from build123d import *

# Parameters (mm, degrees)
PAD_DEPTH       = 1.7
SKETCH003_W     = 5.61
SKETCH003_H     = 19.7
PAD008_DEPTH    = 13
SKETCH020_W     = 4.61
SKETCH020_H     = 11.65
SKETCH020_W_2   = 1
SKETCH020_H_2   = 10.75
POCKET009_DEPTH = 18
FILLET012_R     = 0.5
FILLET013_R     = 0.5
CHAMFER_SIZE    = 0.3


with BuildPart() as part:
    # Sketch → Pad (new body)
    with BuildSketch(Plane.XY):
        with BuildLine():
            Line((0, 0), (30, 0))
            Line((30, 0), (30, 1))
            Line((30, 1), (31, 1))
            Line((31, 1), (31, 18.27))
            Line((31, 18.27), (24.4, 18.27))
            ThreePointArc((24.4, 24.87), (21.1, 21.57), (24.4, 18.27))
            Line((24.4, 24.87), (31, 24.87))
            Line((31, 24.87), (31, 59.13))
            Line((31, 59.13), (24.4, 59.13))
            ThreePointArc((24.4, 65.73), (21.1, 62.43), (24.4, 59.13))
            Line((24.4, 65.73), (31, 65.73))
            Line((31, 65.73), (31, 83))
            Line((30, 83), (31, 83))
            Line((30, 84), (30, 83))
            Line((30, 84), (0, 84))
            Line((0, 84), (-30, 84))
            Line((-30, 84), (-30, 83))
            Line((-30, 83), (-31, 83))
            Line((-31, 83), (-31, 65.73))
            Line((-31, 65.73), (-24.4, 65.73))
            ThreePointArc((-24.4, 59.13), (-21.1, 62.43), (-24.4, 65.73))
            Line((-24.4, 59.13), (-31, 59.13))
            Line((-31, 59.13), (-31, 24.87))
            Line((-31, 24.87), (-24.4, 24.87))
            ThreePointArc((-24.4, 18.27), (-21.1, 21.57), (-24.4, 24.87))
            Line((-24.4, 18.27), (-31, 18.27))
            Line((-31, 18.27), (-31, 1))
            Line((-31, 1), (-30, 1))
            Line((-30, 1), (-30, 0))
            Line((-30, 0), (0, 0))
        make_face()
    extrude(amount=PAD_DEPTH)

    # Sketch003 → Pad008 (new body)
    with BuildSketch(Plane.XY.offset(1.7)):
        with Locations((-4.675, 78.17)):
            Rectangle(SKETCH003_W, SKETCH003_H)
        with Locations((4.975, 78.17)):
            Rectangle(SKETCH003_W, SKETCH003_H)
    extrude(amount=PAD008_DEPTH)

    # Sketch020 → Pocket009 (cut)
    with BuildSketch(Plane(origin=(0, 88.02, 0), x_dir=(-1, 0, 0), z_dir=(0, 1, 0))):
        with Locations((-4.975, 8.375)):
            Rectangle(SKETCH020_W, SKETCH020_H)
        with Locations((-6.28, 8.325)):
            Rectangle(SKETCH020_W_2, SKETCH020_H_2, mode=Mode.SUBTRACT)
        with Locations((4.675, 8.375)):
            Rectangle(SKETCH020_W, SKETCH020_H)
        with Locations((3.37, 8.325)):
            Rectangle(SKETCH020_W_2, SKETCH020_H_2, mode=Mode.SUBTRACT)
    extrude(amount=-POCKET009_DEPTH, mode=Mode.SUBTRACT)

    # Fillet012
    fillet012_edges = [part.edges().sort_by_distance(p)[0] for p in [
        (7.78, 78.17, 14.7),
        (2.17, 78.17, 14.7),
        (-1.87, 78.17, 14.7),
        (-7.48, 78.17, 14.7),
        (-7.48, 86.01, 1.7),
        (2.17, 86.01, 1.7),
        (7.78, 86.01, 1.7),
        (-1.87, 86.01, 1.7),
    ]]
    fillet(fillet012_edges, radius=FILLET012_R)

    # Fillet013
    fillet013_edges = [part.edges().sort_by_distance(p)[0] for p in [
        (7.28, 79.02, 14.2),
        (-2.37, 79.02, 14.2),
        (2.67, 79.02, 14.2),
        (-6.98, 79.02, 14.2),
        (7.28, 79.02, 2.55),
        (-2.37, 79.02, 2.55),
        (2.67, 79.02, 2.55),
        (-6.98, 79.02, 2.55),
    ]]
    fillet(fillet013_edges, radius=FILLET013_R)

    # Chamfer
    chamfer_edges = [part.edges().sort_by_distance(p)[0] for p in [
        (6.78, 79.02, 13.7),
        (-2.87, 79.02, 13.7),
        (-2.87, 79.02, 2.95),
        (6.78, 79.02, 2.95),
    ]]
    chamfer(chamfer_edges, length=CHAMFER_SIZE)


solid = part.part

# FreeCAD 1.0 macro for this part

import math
import FreeCAD as App
import Part
import Sketcher
Q = App.Units.Quantity


def edges_at(feature, points):
    """Names of the edges that pass closest to the given points."""
    edges = feature.Shape.Edges
    near = lambda p: min(range(len(edges)), key=lambda i: edges[i].distToShape(Part.Vertex(*p))[0])
    return sorted({f"Edge{near(p) + 1}" for p in points})

doc = App.newDocument("Part")
params = doc.addObject("Spreadsheet::Sheet", "Params")
for row, (alias, value) in enumerate([
    ("sketch1_radius", "3.3 mm"),
    ("sketch1_width", "1 mm"),
    ("sketch1_width2", "60 mm"),
    ("sketch1_width3", "6.6 mm"),
    ("sketch1_height", "17.27 mm"),
    ("pad1_length", "1.7 mm"),
    ("sketch2_height", "19.7 mm"),
    ("sketch2_width", "5.61 mm"),
    ("pad2_length", "13 mm"),
    ("sketch3_width", "1 mm"),
    ("sketch3_width2", "4.61 mm"),
    ("sketch3_height", "11.65 mm"),
    ("sketch3_height2", "10.75 mm"),
    ("pocket1_length", "18 mm"),
    ("fillet_radius", "0.5 mm"),
    ("fillet2_radius", "0.5 mm"),
    ("chamfer_size", "0.3 mm"),
], start=1):
    params.set(f"A{row}", alias)
    params.set(f"B{row}", "=" + value)
    params.setAlias(f"B{row}", alias)

body = doc.addObject("PartDesign::Body", "Body")

sketch1 = doc.addObject("Sketcher::SketchObject", "Sketch")
body.addObject(sketch1)
sketch1.AttachmentSupport = (doc.XY_Plane, [""])
sketch1.MapMode = "FlatFace"
sketch1.addGeometry([
    Part.LineSegment(App.Vector(30, 0, 0), App.Vector(30, 1, 0)),
    Part.LineSegment(App.Vector(30, 1, 0), App.Vector(31, 1, 0)),
    Part.LineSegment(App.Vector(31, 1, 0), App.Vector(31, 18.3, 0)),
    Part.LineSegment(App.Vector(31, 18.3, 0), App.Vector(24.4, 18.3, 0)),
    Part.ArcOfCircle(Part.Circle(App.Vector(24.4, 21.6, 0), App.Vector(0, 0, 1), 3.3), math.radians(90), math.radians(270)),
    Part.LineSegment(App.Vector(24.4, 24.9, 0), App.Vector(31, 24.9, 0)),
    Part.LineSegment(App.Vector(31, 24.9, 0), App.Vector(31, 59.1, 0)),
    Part.LineSegment(App.Vector(31, 59.1, 0), App.Vector(24.4, 59.1, 0)),
    Part.ArcOfCircle(Part.Circle(App.Vector(24.4, 62.4, 0), App.Vector(0, 0, 1), 3.3), math.radians(90), math.radians(270)),
    Part.LineSegment(App.Vector(24.4, 65.7, 0), App.Vector(31, 65.7, 0)),
    Part.LineSegment(App.Vector(31, 65.7, 0), App.Vector(31, 83, 0)),
    Part.LineSegment(App.Vector(31, 83, 0), App.Vector(30, 83, 0)),
    Part.LineSegment(App.Vector(30, 83, 0), App.Vector(30, 84, 0)),
    Part.LineSegment(App.Vector(30, 84, 0), App.Vector(-30, 84, 0)),
    Part.LineSegment(App.Vector(-30, 84, 0), App.Vector(-30, 83, 0)),
    Part.LineSegment(App.Vector(-30, 83, 0), App.Vector(-31, 83, 0)),
    Part.LineSegment(App.Vector(-31, 83, 0), App.Vector(-31, 65.7, 0)),
    Part.LineSegment(App.Vector(-31, 65.7, 0), App.Vector(-24.4, 65.7, 0)),
    Part.ArcOfCircle(Part.Circle(App.Vector(-24.4, 62.4, 0), App.Vector(0, 0, 1), 3.3), math.radians(-90), math.radians(90)),
    Part.LineSegment(App.Vector(-24.4, 59.1, 0), App.Vector(-31, 59.1, 0)),
    Part.LineSegment(App.Vector(-31, 59.1, 0), App.Vector(-31, 24.9, 0)),
    Part.LineSegment(App.Vector(-31, 24.9, 0), App.Vector(-24.4, 24.9, 0)),
    Part.ArcOfCircle(Part.Circle(App.Vector(-24.4, 21.6, 0), App.Vector(0, 0, 1), 3.3), math.radians(-90), math.radians(90)),
    Part.LineSegment(App.Vector(-24.4, 18.3, 0), App.Vector(-31, 18.3, 0)),
    Part.LineSegment(App.Vector(-31, 18.3, 0), App.Vector(-31, 1, 0)),
    Part.LineSegment(App.Vector(-31, 1, 0), App.Vector(-30, 1, 0)),
    Part.LineSegment(App.Vector(-30, 1, 0), App.Vector(-30, 0, 0)),
    Part.LineSegment(App.Vector(-30, 0, 0), App.Vector(30, 0, 0)),
], False)
sketch1.addConstraint([
    Sketcher.Constraint("Coincident", 0, 2, 1, 1),
    Sketcher.Constraint("Coincident", 1, 2, 2, 1),
    Sketcher.Constraint("Coincident", 2, 2, 3, 1),
    Sketcher.Constraint("Tangent", 3, 2, 4, 2),
    Sketcher.Constraint("Tangent", 4, 1, 5, 1),
    Sketcher.Constraint("Coincident", 5, 2, 6, 1),
    Sketcher.Constraint("Coincident", 6, 2, 7, 1),
    Sketcher.Constraint("Tangent", 7, 2, 8, 2),
    Sketcher.Constraint("Tangent", 8, 1, 9, 1),
    Sketcher.Constraint("Coincident", 9, 2, 10, 1),
    Sketcher.Constraint("Coincident", 10, 2, 11, 1),
    Sketcher.Constraint("Coincident", 11, 2, 12, 1),
    Sketcher.Constraint("Coincident", 12, 2, 13, 1),
    Sketcher.Constraint("Coincident", 13, 2, 14, 1),
    Sketcher.Constraint("Coincident", 14, 2, 15, 1),
    Sketcher.Constraint("Coincident", 15, 2, 16, 1),
    Sketcher.Constraint("Coincident", 16, 2, 17, 1),
    Sketcher.Constraint("Tangent", 17, 2, 18, 2),
    Sketcher.Constraint("Tangent", 18, 1, 19, 1),
    Sketcher.Constraint("Coincident", 19, 2, 20, 1),
    Sketcher.Constraint("Coincident", 20, 2, 21, 1),
    Sketcher.Constraint("Tangent", 21, 2, 22, 2),
    Sketcher.Constraint("Tangent", 22, 1, 23, 1),
    Sketcher.Constraint("Coincident", 23, 2, 24, 1),
    Sketcher.Constraint("Coincident", 24, 2, 25, 1),
    Sketcher.Constraint("Coincident", 25, 2, 26, 1),
    Sketcher.Constraint("Coincident", 26, 2, 27, 1),
    Sketcher.Constraint("Coincident", 27, 2, 0, 1),
    Sketcher.Constraint("Vertical", 0),
    Sketcher.Constraint("Horizontal", 1),
    Sketcher.Constraint("Vertical", 2),
    Sketcher.Constraint("Horizontal", 3),
    Sketcher.Constraint("Horizontal", 5),
    Sketcher.Constraint("Vertical", 6),
    Sketcher.Constraint("Horizontal", 7),
    Sketcher.Constraint("Horizontal", 9),
    Sketcher.Constraint("Vertical", 10),
    Sketcher.Constraint("Horizontal", 11),
    Sketcher.Constraint("Vertical", 12),
    Sketcher.Constraint("Horizontal", 13),
    Sketcher.Constraint("Vertical", 14),
    Sketcher.Constraint("Horizontal", 15),
    Sketcher.Constraint("Vertical", 16),
    Sketcher.Constraint("Horizontal", 17),
    Sketcher.Constraint("Horizontal", 19),
    Sketcher.Constraint("Vertical", 20),
    Sketcher.Constraint("Horizontal", 21),
    Sketcher.Constraint("Horizontal", 23),
    Sketcher.Constraint("Vertical", 24),
    Sketcher.Constraint("Horizontal", 25),
    Sketcher.Constraint("Vertical", 26),
    Sketcher.Constraint("Horizontal", 27),
    Sketcher.Constraint("Equal", 4, 8),
    Sketcher.Constraint("Equal", 8, 18),
    Sketcher.Constraint("Equal", 18, 22),
    Sketcher.Constraint("Symmetric", 26, 2, 27, 2, -1, 1),
    Sketcher.Constraint("Symmetric", 8, 3, 18, 3, -2),
    Sketcher.Constraint("Symmetric", 4, 3, 22, 3, -2),
    Sketcher.Constraint("Symmetric", 11, 2, 14, 2, -2),
    Sketcher.Constraint("Symmetric", 1, 2, 24, 2, -2),
    Sketcher.Constraint("Vertical", 4, 3, 8, 3),
    Sketcher.Constraint("Vertical", 2, 2, 5, 2),
    Sketcher.Constraint("Vertical", 6, 2, 9, 2),
    Sketcher.Constraint("Vertical", 0, 2, 11, 2),
    Sketcher.Constraint("Vertical", 16, 2, 19, 2),
    Sketcher.Constraint("Vertical", 20, 2, 23, 2),
    Sketcher.Constraint("Equal", 25, 0),
    Sketcher.Constraint("Equal", 2, 10),
    Sketcher.Constraint("Equal", 0, 12),
    Sketcher.Constraint("Radius", 4, Q("3.3 mm")),
    Sketcher.Constraint("DistanceX", 1, 1, 1, 2, Q("1 mm")),
    Sketcher.Constraint("DistanceX", 13, 2, 13, 1, Q("60 mm")),
    Sketcher.Constraint("DistanceX", 3, 2, 3, 1, Q("6.6 mm")),
    Sketcher.Constraint("DistanceY", -1, 1, 10, 2, Q("83 mm")),
    Sketcher.Constraint("DistanceY", 2, 1, 2, 2, Q("17.27 mm")),
])
sketch1.setExpression("Constraints[69]", "Params.sketch1_radius")
sketch1.setExpression("Constraints[70]", "Params.sketch1_width")
sketch1.setExpression("Constraints[71]", "Params.sketch1_width2")
sketch1.setExpression("Constraints[72]", "Params.sketch1_width3")
sketch1.setExpression("Constraints[74]", "Params.sketch1_height")
pad1 = doc.addObject("PartDesign::Pad", "Pad")
body.addObject(pad1)
pad1.Profile = sketch1
pad1.setExpression("Length", "Params.pad1_length")

sketch2 = doc.addObject("Sketcher::SketchObject", "Sketch001")
body.addObject(sketch2)
sketch2.AttachmentSupport = (doc.XY_Plane, [""])
sketch2.MapMode = "FlatFace"
sketch2.AttachmentOffset = App.Placement(App.Vector(0, 0, 1.7), App.Rotation())
sketch2.addGeometry([
    Part.LineSegment(App.Vector(-7, 88, 0), App.Vector(-7, 68, 0)),
    Part.LineSegment(App.Vector(-7, 68, 0), App.Vector(-2, 68, 0)),
    Part.LineSegment(App.Vector(-2, 68, 0), App.Vector(-2, 88, 0)),
    Part.LineSegment(App.Vector(-2, 88, 0), App.Vector(-7, 88, 0)),
    Part.LineSegment(App.Vector(2, 88, 0), App.Vector(2, 68, 0)),
    Part.LineSegment(App.Vector(2, 68, 0), App.Vector(8, 68, 0)),
    Part.LineSegment(App.Vector(8, 68, 0), App.Vector(8, 88, 0)),
    Part.LineSegment(App.Vector(8, 88, 0), App.Vector(2, 88, 0)),
], False)
sketch2.addConstraint([
    Sketcher.Constraint("Coincident", 0, 2, 1, 1),
    Sketcher.Constraint("Coincident", 1, 2, 2, 1),
    Sketcher.Constraint("Coincident", 2, 2, 3, 1),
    Sketcher.Constraint("Coincident", 3, 2, 0, 1),
    Sketcher.Constraint("Coincident", 4, 2, 5, 1),
    Sketcher.Constraint("Coincident", 5, 2, 6, 1),
    Sketcher.Constraint("Coincident", 6, 2, 7, 1),
    Sketcher.Constraint("Coincident", 7, 2, 4, 1),
    Sketcher.Constraint("Vertical", 0),
    Sketcher.Constraint("Horizontal", 1),
    Sketcher.Constraint("Vertical", 2),
    Sketcher.Constraint("Horizontal", 3),
    Sketcher.Constraint("Vertical", 4),
    Sketcher.Constraint("Horizontal", 5),
    Sketcher.Constraint("Vertical", 6),
    Sketcher.Constraint("Horizontal", 7),
    Sketcher.Constraint("Horizontal", 1, 2, 4, 2),
    Sketcher.Constraint("Horizontal", 3, 2, 6, 2),
    Sketcher.Constraint("Equal", 3, 5),
    Sketcher.Constraint("DistanceY", 0, 2, 0, 1, Q("19.7 mm")),
    Sketcher.Constraint("DistanceX", 1, 1, 1, 2, Q("5.61 mm")),
    Sketcher.Constraint("DistanceX", 0, 2, -1, 1, Q("7.48 mm")),
    Sketcher.Constraint("DistanceY", -1, 1, 0, 2, Q("68.32 mm")),
    Sketcher.Constraint("DistanceX", -1, 1, 4, 2, Q("2.17 mm")),
])
sketch2.setExpression("Constraints[19]", "Params.sketch2_height")
sketch2.setExpression("Constraints[20]", "Params.sketch2_width")
pad2 = doc.addObject("PartDesign::Pad", "Pad001")
body.addObject(pad2)
pad2.Profile = sketch2
pad2.setExpression("Length", "Params.pad2_length")

sketch3 = doc.addObject("Sketcher::SketchObject", "Sketch002")
body.addObject(sketch3)
sketch3.AttachmentSupport = (doc.XZ_Plane, [""])
sketch3.MapMode = "FlatFace"
sketch3.AttachmentOffset = App.Placement(App.Vector(0, 0, -88.02), App.Rotation())
sketch3.addGeometry([
    Part.LineSegment(App.Vector(7.3, 14.2, 0), App.Vector(7.3, 2.5, 0)),
    Part.LineSegment(App.Vector(7.3, 2.5, 0), App.Vector(2.7, 2.5, 0)),
    Part.LineSegment(App.Vector(2.7, 2.5, 0), App.Vector(2.7, 14.2, 0)),
    Part.LineSegment(App.Vector(2.7, 14.2, 0), App.Vector(7.3, 14.2, 0)),
    Part.LineSegment(App.Vector(5.8, 3, 0), App.Vector(6.8, 3, 0)),
    Part.LineSegment(App.Vector(6.8, 3, 0), App.Vector(6.8, 13.7, 0)),
    Part.LineSegment(App.Vector(6.8, 13.7, 0), App.Vector(5.8, 13.7, 0)),
    Part.LineSegment(App.Vector(5.8, 13.7, 0), App.Vector(5.8, 3, 0)),
    Part.LineSegment(App.Vector(-2.4, 14.2, 0), App.Vector(-2.4, 2.5, 0)),
    Part.LineSegment(App.Vector(-2.4, 2.5, 0), App.Vector(-7, 2.5, 0)),
    Part.LineSegment(App.Vector(-7, 2.5, 0), App.Vector(-7, 14.2, 0)),
    Part.LineSegment(App.Vector(-7, 14.2, 0), App.Vector(-2.4, 14.2, 0)),
    Part.LineSegment(App.Vector(-3.9, 3, 0), App.Vector(-2.9, 3, 0)),
    Part.LineSegment(App.Vector(-2.9, 3, 0), App.Vector(-2.9, 13.7, 0)),
    Part.LineSegment(App.Vector(-2.9, 13.7, 0), App.Vector(-3.9, 13.7, 0)),
    Part.LineSegment(App.Vector(-3.9, 13.7, 0), App.Vector(-3.9, 3, 0)),
], False)
sketch3.addConstraint([
    Sketcher.Constraint("Coincident", 0, 2, 1, 1),
    Sketcher.Constraint("Coincident", 1, 2, 2, 1),
    Sketcher.Constraint("Coincident", 2, 2, 3, 1),
    Sketcher.Constraint("Coincident", 3, 2, 0, 1),
    Sketcher.Constraint("Coincident", 4, 2, 5, 1),
    Sketcher.Constraint("Coincident", 5, 2, 6, 1),
    Sketcher.Constraint("Coincident", 6, 2, 7, 1),
    Sketcher.Constraint("Coincident", 7, 2, 4, 1),
    Sketcher.Constraint("Coincident", 8, 2, 9, 1),
    Sketcher.Constraint("Coincident", 9, 2, 10, 1),
    Sketcher.Constraint("Coincident", 10, 2, 11, 1),
    Sketcher.Constraint("Coincident", 11, 2, 8, 1),
    Sketcher.Constraint("Coincident", 12, 2, 13, 1),
    Sketcher.Constraint("Coincident", 13, 2, 14, 1),
    Sketcher.Constraint("Coincident", 14, 2, 15, 1),
    Sketcher.Constraint("Coincident", 15, 2, 12, 1),
    Sketcher.Constraint("Vertical", 0),
    Sketcher.Constraint("Horizontal", 1),
    Sketcher.Constraint("Vertical", 2),
    Sketcher.Constraint("Horizontal", 3),
    Sketcher.Constraint("Horizontal", 4),
    Sketcher.Constraint("Vertical", 5),
    Sketcher.Constraint("Horizontal", 6),
    Sketcher.Constraint("Vertical", 7),
    Sketcher.Constraint("Vertical", 8),
    Sketcher.Constraint("Horizontal", 9),
    Sketcher.Constraint("Vertical", 10),
    Sketcher.Constraint("Horizontal", 11),
    Sketcher.Constraint("Horizontal", 12),
    Sketcher.Constraint("Vertical", 13),
    Sketcher.Constraint("Horizontal", 14),
    Sketcher.Constraint("Vertical", 15),
    Sketcher.Constraint("Horizontal", 1, 2, 8, 2),
    Sketcher.Constraint("Horizontal", 3, 2, 10, 2),
    Sketcher.Constraint("Horizontal", 7, 2, 12, 2),
    Sketcher.Constraint("Horizontal", 6, 2, 13, 2),
    Sketcher.Constraint("Equal", 3, 9),
    Sketcher.Constraint("Equal", 6, 12),
    Sketcher.Constraint("DistanceX", 4, 1, 4, 2, Q("1 mm")),
    Sketcher.Constraint("DistanceX", 1, 2, 1, 1, Q("4.61 mm")),
    Sketcher.Constraint("DistanceY", 0, 2, 0, 1, Q("11.65 mm")),
    Sketcher.Constraint("DistanceY", 5, 1, 5, 2, Q("10.75 mm")),
    Sketcher.Constraint("DistanceY", -1, 1, 2, 2, Q("14.2 mm")),
    Sketcher.Constraint("DistanceY", -1, 1, 5, 2, Q("13.7 mm")),
    Sketcher.Constraint("DistanceX", 4, 2, 0, 2, Q("0.5 mm")),
    Sketcher.Constraint("DistanceX", 12, 2, 8, 2, Q("0.5 mm")),
    Sketcher.Constraint("DistanceX", -1, 1, 0, 2, Q("7.28 mm")),
    Sketcher.Constraint("DistanceX", 8, 2, -1, 1, Q("2.37 mm")),
])
sketch3.setExpression("Constraints[38]", "Params.sketch3_width")
sketch3.setExpression("Constraints[39]", "Params.sketch3_width2")
sketch3.setExpression("Constraints[40]", "Params.sketch3_height")
sketch3.setExpression("Constraints[41]", "Params.sketch3_height2")
pocket1 = doc.addObject("PartDesign::Pocket", "Pocket")
body.addObject(pocket1)
pocket1.Profile = sketch3
pocket1.setExpression("Length", "Params.pocket1_length")
pocket1.Reversed = True
doc.recompute()

fillet = doc.addObject("PartDesign::Fillet", "Fillet")
body.addObject(fillet)
fillet.Base = (pocket1, edges_at(pocket1, [
    (7.78, 78.17, 14.7),
    (2.17, 78.17, 14.7),
    (-1.87, 78.17, 14.7),
    (-7.48, 78.17, 14.7),
    (-7.48, 86.01, 1.7),
    (2.17, 86.01, 1.7),
    (7.78, 86.01, 1.7),
    (-1.87, 86.01, 1.7),
]))
fillet.setExpression("Radius", "Params.fillet_radius")
doc.recompute()

fillet2 = doc.addObject("PartDesign::Fillet", "Fillet001")
body.addObject(fillet2)
fillet2.Base = (fillet, edges_at(fillet, [
    (7.28, 79.02, 14.2),
    (-2.37, 79.02, 14.2),
    (2.67, 79.02, 14.2),
    (-6.98, 79.02, 14.2),
    (7.28, 79.02, 2.55),
    (-2.37, 79.02, 2.55),
    (2.67, 79.02, 2.55),
    (-6.98, 79.02, 2.55),
]))
fillet2.setExpression("Radius", "Params.fillet2_radius")
doc.recompute()

chamfer = doc.addObject("PartDesign::Chamfer", "Chamfer")
body.addObject(chamfer)
chamfer.Base = (fillet2, edges_at(fillet2, [
    (6.78, 79.02, 13.7),
    (-2.87, 79.02, 13.7),
    (-2.87, 79.02, 2.95),
    (6.78, 79.02, 2.95),
]))
chamfer.setExpression("Size", "Params.chamfer_size")

doc.recompute()
